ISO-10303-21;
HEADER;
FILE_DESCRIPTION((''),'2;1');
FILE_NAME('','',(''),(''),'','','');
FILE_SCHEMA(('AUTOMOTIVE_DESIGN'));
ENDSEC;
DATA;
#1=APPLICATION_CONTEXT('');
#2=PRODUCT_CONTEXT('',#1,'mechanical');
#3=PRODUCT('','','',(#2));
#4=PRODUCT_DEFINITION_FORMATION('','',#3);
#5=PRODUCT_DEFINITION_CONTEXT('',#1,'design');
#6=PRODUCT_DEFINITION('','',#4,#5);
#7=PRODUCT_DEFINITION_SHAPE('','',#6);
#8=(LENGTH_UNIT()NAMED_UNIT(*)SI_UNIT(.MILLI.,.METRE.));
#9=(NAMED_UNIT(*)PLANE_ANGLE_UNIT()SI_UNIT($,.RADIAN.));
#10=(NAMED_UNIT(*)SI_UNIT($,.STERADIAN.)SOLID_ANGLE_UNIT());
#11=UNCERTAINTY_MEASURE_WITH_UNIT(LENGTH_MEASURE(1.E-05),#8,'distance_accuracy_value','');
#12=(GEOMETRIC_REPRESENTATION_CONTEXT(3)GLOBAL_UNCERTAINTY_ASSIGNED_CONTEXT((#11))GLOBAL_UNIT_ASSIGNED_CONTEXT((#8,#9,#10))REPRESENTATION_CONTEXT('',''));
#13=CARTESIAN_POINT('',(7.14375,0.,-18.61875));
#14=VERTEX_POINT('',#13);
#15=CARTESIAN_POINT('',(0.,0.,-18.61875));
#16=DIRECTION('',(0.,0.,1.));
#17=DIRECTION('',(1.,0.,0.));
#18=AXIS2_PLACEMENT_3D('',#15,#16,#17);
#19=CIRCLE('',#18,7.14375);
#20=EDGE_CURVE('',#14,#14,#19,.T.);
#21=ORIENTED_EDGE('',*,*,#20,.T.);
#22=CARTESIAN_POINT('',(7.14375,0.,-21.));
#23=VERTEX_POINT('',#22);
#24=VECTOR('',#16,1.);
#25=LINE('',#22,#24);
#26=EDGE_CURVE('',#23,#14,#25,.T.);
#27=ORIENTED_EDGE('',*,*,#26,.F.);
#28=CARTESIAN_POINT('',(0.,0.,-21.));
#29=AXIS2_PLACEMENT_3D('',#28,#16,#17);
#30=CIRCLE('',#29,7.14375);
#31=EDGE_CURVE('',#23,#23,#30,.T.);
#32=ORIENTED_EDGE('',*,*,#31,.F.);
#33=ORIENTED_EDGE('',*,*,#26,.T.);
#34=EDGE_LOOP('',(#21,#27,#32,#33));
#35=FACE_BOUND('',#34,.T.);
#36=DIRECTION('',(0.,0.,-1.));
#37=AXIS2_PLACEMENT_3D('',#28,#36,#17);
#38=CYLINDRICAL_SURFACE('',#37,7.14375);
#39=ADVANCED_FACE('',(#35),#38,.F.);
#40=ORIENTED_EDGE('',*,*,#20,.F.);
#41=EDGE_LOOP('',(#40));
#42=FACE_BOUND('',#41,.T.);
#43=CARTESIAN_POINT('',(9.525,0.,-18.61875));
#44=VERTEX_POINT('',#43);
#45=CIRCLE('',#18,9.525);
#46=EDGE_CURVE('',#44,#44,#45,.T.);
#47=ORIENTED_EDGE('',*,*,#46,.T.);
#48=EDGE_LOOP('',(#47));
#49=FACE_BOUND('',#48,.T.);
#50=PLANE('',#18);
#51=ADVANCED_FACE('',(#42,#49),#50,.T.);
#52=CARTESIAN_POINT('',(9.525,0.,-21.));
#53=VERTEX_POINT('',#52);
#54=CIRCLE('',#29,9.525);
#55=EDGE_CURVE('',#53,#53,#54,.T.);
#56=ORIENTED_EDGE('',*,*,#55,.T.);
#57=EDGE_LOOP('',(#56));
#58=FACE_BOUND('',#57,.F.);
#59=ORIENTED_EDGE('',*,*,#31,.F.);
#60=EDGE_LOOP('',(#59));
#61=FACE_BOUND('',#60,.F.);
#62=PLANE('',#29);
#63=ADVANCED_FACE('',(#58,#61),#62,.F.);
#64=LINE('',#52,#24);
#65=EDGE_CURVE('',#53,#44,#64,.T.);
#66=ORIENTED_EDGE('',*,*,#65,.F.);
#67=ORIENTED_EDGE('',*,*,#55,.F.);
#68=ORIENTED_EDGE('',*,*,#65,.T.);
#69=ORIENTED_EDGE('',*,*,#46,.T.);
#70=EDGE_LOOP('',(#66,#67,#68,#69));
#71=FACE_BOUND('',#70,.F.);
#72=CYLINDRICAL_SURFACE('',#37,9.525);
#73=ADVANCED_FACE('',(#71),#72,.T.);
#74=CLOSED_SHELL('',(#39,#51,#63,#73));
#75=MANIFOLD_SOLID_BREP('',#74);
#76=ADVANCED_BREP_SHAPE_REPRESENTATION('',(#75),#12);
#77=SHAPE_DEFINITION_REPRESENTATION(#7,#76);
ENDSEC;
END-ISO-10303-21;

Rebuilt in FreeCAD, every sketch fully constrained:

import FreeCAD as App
import Part
import Sketcher

V = App.Vector
Q = App.Units.Quantity

doc = App.newDocument("Part")
params = doc.addObject("Spreadsheet::Sheet", "Params")
for row, (alias, value) in enumerate([
    ("sketch1_diameter", "0.5625 in"),
    ("pad1_length", "0.09375 in"),
    ("sketch2_diameter", "0.75 in"),
    ("pad2_length", "0.09375 in"),
], start=1):
    params.set(f"A{row}", alias)
    params.set(f"B{row}", "=" + value)
    params.setAlias(f"B{row}", alias)

body = doc.addObject("PartDesign::Body", "Body")

sketch1 = body.newObject("Sketcher::SketchObject", "Sketch")
sketch1.AttachmentSupport = (doc.getObject("XY_Plane"), [""])
sketch1.MapMode = "FlatFace"
sketch1.AttachmentOffset = App.Placement(V(0, 0, -21), App.Rotation())
sketch1.addGeometry(Part.Circle(V(0, 0, 0), V(0, 0, 1), 7.14375), False)
sketch1.addConstraint(Sketcher.Constraint("Coincident", 0, 3, -1, 1))
sketch1.addConstraint(Sketcher.Constraint("Diameter", 0, Q("0.5625 in")))
sketch1.setExpression("Constraints[1]", "Params.sketch1_diameter")
pad1 = body.newObject("PartDesign::Pad", "Pad")
pad1.Profile = sketch1
pad1.setExpression("Length", "Params.pad1_length")
body2 = doc.addObject("PartDesign::Body", "Body001")

sketch2 = body2.newObject("Sketcher::SketchObject", "Sketch001")
sketch2.AttachmentSupport = (doc.getObject("XY_Plane001"), [""])
sketch2.MapMode = "FlatFace"
sketch2.AttachmentOffset = App.Placement(V(0, 0, -21), App.Rotation())
sketch2.addGeometry(Part.Circle(V(0, 0, 0), V(0, 0, 1), 9.525), False)
sketch2.addConstraint(Sketcher.Constraint("Coincident", 0, 3, -1, 1))
sketch2.addConstraint(Sketcher.Constraint("Diameter", 0, Q("0.75 in")))
sketch2.setExpression("Constraints[1]", "Params.sketch2_diameter")
pad2 = body2.newObject("PartDesign::Pad", "Pad001")
pad2.Profile = sketch2
pad2.setExpression("Length", "Params.pad2_length")
doc.recompute()

boolean = body2.newObject("PartDesign::Boolean", "Boolean")
boolean.Type = "Cut"
boolean.addObjects([body])

doc.recompute()
